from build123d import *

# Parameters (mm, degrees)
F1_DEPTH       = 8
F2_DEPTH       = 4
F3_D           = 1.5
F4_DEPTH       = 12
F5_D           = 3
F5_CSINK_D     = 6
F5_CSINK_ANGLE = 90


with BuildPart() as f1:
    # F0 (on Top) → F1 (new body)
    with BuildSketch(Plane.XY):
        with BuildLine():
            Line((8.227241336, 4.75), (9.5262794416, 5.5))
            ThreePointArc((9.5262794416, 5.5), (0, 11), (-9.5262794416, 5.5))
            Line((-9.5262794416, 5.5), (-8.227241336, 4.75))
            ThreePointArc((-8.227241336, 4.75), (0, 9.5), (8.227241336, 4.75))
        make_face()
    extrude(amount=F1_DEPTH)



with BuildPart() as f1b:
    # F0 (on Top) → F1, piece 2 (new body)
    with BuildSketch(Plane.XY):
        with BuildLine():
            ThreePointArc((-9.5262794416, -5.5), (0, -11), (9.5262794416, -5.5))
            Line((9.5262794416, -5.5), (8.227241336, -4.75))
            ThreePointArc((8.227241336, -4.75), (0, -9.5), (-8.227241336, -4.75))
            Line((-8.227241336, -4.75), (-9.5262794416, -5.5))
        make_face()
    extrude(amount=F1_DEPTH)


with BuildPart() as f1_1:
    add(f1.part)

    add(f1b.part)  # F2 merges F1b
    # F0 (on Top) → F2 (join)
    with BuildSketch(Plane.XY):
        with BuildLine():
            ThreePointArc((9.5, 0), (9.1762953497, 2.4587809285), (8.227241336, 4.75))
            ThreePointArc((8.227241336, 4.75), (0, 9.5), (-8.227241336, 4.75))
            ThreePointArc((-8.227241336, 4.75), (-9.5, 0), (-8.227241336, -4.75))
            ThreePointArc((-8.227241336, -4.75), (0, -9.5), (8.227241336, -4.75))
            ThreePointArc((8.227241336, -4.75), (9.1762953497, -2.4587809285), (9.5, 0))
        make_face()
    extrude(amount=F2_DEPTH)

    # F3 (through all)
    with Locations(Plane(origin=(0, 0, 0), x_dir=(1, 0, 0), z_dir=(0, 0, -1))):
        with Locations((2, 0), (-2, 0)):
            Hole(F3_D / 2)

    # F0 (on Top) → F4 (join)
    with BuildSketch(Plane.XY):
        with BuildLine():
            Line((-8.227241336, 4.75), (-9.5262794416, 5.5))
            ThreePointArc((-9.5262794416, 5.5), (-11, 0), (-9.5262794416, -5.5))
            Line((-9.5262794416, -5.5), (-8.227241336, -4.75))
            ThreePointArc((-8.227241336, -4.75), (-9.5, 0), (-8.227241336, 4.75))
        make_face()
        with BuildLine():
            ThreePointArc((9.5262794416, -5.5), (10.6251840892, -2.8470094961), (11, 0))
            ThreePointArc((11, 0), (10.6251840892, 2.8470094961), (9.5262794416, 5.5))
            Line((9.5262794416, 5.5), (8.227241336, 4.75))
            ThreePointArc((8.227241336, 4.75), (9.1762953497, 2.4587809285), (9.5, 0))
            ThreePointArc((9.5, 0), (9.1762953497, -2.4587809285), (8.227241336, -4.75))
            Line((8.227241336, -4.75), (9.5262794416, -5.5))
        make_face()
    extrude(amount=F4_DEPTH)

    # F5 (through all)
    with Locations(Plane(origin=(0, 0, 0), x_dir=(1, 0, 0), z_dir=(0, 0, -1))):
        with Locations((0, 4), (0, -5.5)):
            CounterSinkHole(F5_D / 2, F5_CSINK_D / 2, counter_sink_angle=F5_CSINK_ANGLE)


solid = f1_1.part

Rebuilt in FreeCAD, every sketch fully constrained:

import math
import FreeCAD as App
import Part
import Sketcher
Q = App.Units.Quantity

doc = App.newDocument("Part")
body = doc.addObject("PartDesign::Body", "Body")

# Sketch on XY plane
sketch1 = doc.addObject("Sketcher::SketchObject", "Sketch")
body.addObject(sketch1)
sketch1.AttachmentSupport = (doc.XY_Plane, [""])
sketch1.MapMode = "FlatFace"
sketch1.addGeometry([
    Part.LineSegment(App.Vector(8.227241, 4.75, 0), App.Vector(9.526279, 5.5, 0)),
    Part.ArcOfCircle(Part.Circle(App.Vector(0, 0, 0), App.Vector(0, 0, 1), 11), math.radians(30), math.radians(150)),
    Part.LineSegment(App.Vector(-9.526279, 5.5, 0), App.Vector(-8.227241, 4.75, 0)),
    Part.ArcOfCircle(Part.Circle(App.Vector(0, 0, 0), App.Vector(0, 0, 1), 9.5), math.radians(30), math.radians(150)),
], False)
sketch1.addConstraint([
    Sketcher.Constraint("Coincident", 0, 2, 1, 1),
    Sketcher.Constraint("Coincident", 1, 2, 2, 1),
    Sketcher.Constraint("Coincident", 2, 2, 3, 2),
    Sketcher.Constraint("Coincident", 3, 1, 0, 1),
    Sketcher.Constraint("Coincident", 1, 3, -1, 1),
    Sketcher.Constraint("Coincident", 3, 3, -1, 1),
    Sketcher.Constraint("Horizontal", 0, 2, 1, 2),
    Sketcher.Constraint("Horizontal", 2, 2, 3, 1),
    Sketcher.Constraint("Radius", 1, 11.0),
    Sketcher.Constraint("Radius", 3, 9.5),
    Sketcher.Constraint("Angle", 0, Q("30 deg")),
    Sketcher.Constraint("DistanceY", -1, 1, 0, 2, 5.5),
])
pad1 = doc.addObject("PartDesign::Pad", "Pad")
body.addObject(pad1)
pad1.Profile = sketch1
pad1.Length = 8
body2 = doc.addObject("PartDesign::Body", "Body001")

# Sketch on XY plane
sketch2 = doc.addObject("Sketcher::SketchObject", "Sketch001")
body2.addObject(sketch2)
sketch2.AttachmentSupport = (doc.getObject("XY_Plane001"), [""])
sketch2.MapMode = "FlatFace"
sketch2.addGeometry([
    Part.ArcOfCircle(Part.Circle(App.Vector(0, 0, 0), App.Vector(0, 0, 1), 11), math.radians(-150), math.radians(-30)),
    Part.LineSegment(App.Vector(9.526279, -5.5, 0), App.Vector(8.227241, -4.75, 0)),
    Part.ArcOfCircle(Part.Circle(App.Vector(0, 0, 0), App.Vector(0, 0, 1), 9.5), math.radians(-150), math.radians(-30)),
    Part.LineSegment(App.Vector(-8.227241, -4.75, 0), App.Vector(-9.526279, -5.5, 0)),
], False)
sketch2.addConstraint([
    Sketcher.Constraint("Coincident", 0, 2, 1, 1),
    Sketcher.Constraint("Coincident", 1, 2, 2, 2),
    Sketcher.Constraint("Coincident", 2, 1, 3, 1),
    Sketcher.Constraint("Coincident", 3, 2, 0, 1),
    Sketcher.Constraint("Coincident", 0, 3, -1, 1),
    Sketcher.Constraint("Coincident", 2, 3, -1, 1),
    Sketcher.Constraint("Horizontal", 1, 2, 2, 1),
    Sketcher.Constraint("Horizontal", 0, 2, 3, 2),
    Sketcher.Constraint("Radius", 0, 11.0),
    Sketcher.Constraint("Radius", 2, 9.5),
    Sketcher.Constraint("Angle", 1, Q("150 deg")),
    Sketcher.Constraint("DistanceY", 0, 2, -1, 1, 5.5),
])
pad2 = doc.addObject("PartDesign::Pad", "Pad001")
body2.addObject(pad2)
pad2.Profile = sketch2
pad2.Length = 8
body.AllowCompound = True
doc.recompute()

boolean = doc.addObject("PartDesign::Boolean", "Boolean")
body.addObject(boolean)
boolean.Type = "Fuse"
boolean.addObjects([body2])

# Sketch on XY plane
sketch3 = doc.addObject("Sketcher::SketchObject", "Sketch002")
body.addObject(sketch3)
sketch3.AttachmentSupport = (doc.XY_Plane, [""])
sketch3.MapMode = "FlatFace"
sketch3.addGeometry([
    Part.ArcOfCircle(Part.Circle(App.Vector(0, 0, 0), App.Vector(0, 0, 1), 9.5), math.radians(0), math.radians(30)),  # 0
    Part.ArcOfCircle(Part.Circle(App.Vector(0, 0, 0), App.Vector(0, 0, 1), 9.5), math.radians(30), math.radians(150)),  # 1
    Part.ArcOfCircle(Part.Circle(App.Vector(0, 0, 0), App.Vector(0, 0, 1), 9.5), math.radians(150), math.radians(210)),  # 2
    Part.ArcOfCircle(Part.Circle(App.Vector(0, 0, 0), App.Vector(0, 0, 1), 9.5), math.radians(-150), math.radians(-30)),  # 3
    Part.ArcOfCircle(Part.Circle(App.Vector(0, 0, 0), App.Vector(0, 0, 1), 9.5), math.radians(-30), math.radians(0)),  # 4
], False)
sketch3.addConstraint([
    Sketcher.Constraint("Tangent", 0, 2, 1, 1),
    Sketcher.Constraint("Tangent", 1, 2, 2, 1),
    Sketcher.Constraint("Tangent", 2, 2, 3, 1),
    Sketcher.Constraint("Tangent", 3, 2, 4, 1),
    Sketcher.Constraint("Tangent", 4, 2, 0, 1),
    Sketcher.Constraint("Coincident", 0, 3, -1, 1),
    Sketcher.Constraint("Coincident", 2, 3, -1, 1),
    Sketcher.Constraint("PointOnObject", 4, 2, -1),
    Sketcher.Constraint("Horizontal", 0, 2, 1, 2),
    Sketcher.Constraint("Horizontal", 2, 2, 3, 2),
    Sketcher.Constraint("Vertical", 1, 2, 2, 2),
    Sketcher.Constraint("Radius", 0, 9.5),
    Sketcher.Constraint("DistanceY", 2, 2, 1, 2, 9.5),
])
pad3 = doc.addObject("PartDesign::Pad", "Pad002")
body.addObject(pad3)
pad3.Profile = sketch3
pad3.Length = 4

# Sketch on XY plane
sketch4 = doc.addObject("Sketcher::SketchObject", "Sketch003")
body.addObject(sketch4)
sketch4.AttachmentSupport = (doc.XY_Plane, [""])
sketch4.MapMode = "FlatFace"
sketch4.addGeometry([
    Part.Circle(App.Vector(2, 0, 0), App.Vector(0, 0, 1), 0.75),
    Part.Circle(App.Vector(-2, 0, 0), App.Vector(0, 0, 1), 0.75),
], False)
sketch4.addConstraint([
    Sketcher.Constraint("Equal", 0, 1),
    Sketcher.Constraint("Symmetric", 0, 3, 1, 3, -1, 1),
    Sketcher.Constraint("PointOnObject", 0, 3, -1),
    Sketcher.Constraint("Diameter", 0, 1.5),
    Sketcher.Constraint("DistanceX", -1, 1, 0, 3, 2.0),
])
doc.recompute()
hole = doc.addObject("PartDesign::Hole", "Hole")
body.addObject(hole)
hole.Profile = sketch4
hole.ThreadType = "None"
hole.Diameter = 1.5
hole.DepthType = "ThroughAll"
hole.Reversed = True

# Sketch on XY plane
sketch5 = doc.addObject("Sketcher::SketchObject", "Sketch004")
body.addObject(sketch5)
sketch5.AttachmentSupport = (doc.XY_Plane, [""])
sketch5.MapMode = "FlatFace"
sketch5.addGeometry([
    Part.LineSegment(App.Vector(-8.227241, 4.75, 0), App.Vector(-9.526279, 5.5, 0)),  # 0
    Part.ArcOfCircle(Part.Circle(App.Vector(0, 0, 0), App.Vector(0, 0, 1), 11), math.radians(150), math.radians(210)),  # 1
    Part.LineSegment(App.Vector(-9.526279, -5.5, 0), App.Vector(-8.227241, -4.75, 0)),  # 2
    Part.ArcOfCircle(Part.Circle(App.Vector(0, 0, 0), App.Vector(0, 0, 1), 9.5), math.radians(150), math.radians(210)),  # 3
    Part.ArcOfCircle(Part.Circle(App.Vector(0, 0, 0), App.Vector(0, 0, 1), 11), math.radians(-30), math.radians(0)),  # 4
    Part.ArcOfCircle(Part.Circle(App.Vector(0, 0, 0), App.Vector(0, 0, 1), 11), math.radians(0), math.radians(30)),  # 5
    Part.LineSegment(App.Vector(9.526279, 5.5, 0), App.Vector(8.227241, 4.75, 0)),  # 6
    Part.ArcOfCircle(Part.Circle(App.Vector(0, 0, 0), App.Vector(0, 0, 1), 9.5), math.radians(0), math.radians(30)),  # 7
    Part.ArcOfCircle(Part.Circle(App.Vector(0, 0, 0), App.Vector(0, 0, 1), 9.5), math.radians(-30), math.radians(0)),  # 8
    Part.LineSegment(App.Vector(8.227241, -4.75, 0), App.Vector(9.526279, -5.5, 0)),  # 9
], False)
sketch5.addConstraint([
    Sketcher.Constraint("Coincident", 0, 2, 1, 1),
    Sketcher.Constraint("Coincident", 1, 2, 2, 1),
    Sketcher.Constraint("Coincident", 2, 2, 3, 2),
    Sketcher.Constraint("Coincident", 3, 1, 0, 1),
    Sketcher.Constraint("Tangent", 4, 2, 5, 1),
    Sketcher.Constraint("Coincident", 5, 2, 6, 1),
    Sketcher.Constraint("Coincident", 6, 2, 7, 2),
    Sketcher.Constraint("Tangent", 7, 1, 8, 2),
    Sketcher.Constraint("Coincident", 8, 1, 9, 1),
    Sketcher.Constraint("Coincident", 9, 2, 4, 1),
    Sketcher.Constraint("Coincident", 1, 3, -1, 1),
    Sketcher.Constraint("Coincident", 3, 3, -1, 1),
    Sketcher.Constraint("Coincident", 4, 3, -1, 1),
    Sketcher.Constraint("Coincident", 7, 3, -1, 1),
    Sketcher.Constraint("Equal", 1, 4),
    Sketcher.Constraint("Equal", 4, 5),
    Sketcher.Constraint("Equal", 3, 7),
    Sketcher.Constraint("Equal", 7, 8),
    Sketcher.Constraint("PointOnObject", 4, 2, -1),
    Sketcher.Constraint("PointOnObject", 7, 1, -1),
    Sketcher.Constraint("Parallel", 2, 6),
    Sketcher.Constraint("Parallel", 0, 9),
    Sketcher.Constraint("Horizontal", 0, 2, 5, 2),
    Sketcher.Constraint("Horizontal", 3, 1, 6, 2),
    Sketcher.Constraint("Horizontal", 2, 2, 8, 1),
    Sketcher.Constraint("Vertical", 0, 2, 1, 2),
    Sketcher.Constraint("Radius", 1, 11.0),
    Sketcher.Constraint("Radius", 3, 9.5),
    Sketcher.Constraint("Angle", 0, Q("150 deg")),
    Sketcher.Constraint("DistanceY", 1, 2, 0, 2, 11.0),
])
pad4 = doc.addObject("PartDesign::Pad", "Pad003")
body.addObject(pad4)
pad4.Profile = sketch5
pad4.Length = 12

# Sketch on XY plane
sketch6 = doc.addObject("Sketcher::SketchObject", "Sketch005")
body.addObject(sketch6)
sketch6.AttachmentSupport = (doc.XY_Plane, [""])
sketch6.MapMode = "FlatFace"
sketch6.addGeometry([
    Part.Circle(App.Vector(0, -4, 0), App.Vector(0, 0, 1), 1.5),
    Part.Circle(App.Vector(0, 5.5, 0), App.Vector(0, 0, 1), 1.5),
], False)
sketch6.addConstraint([
    Sketcher.Constraint("Equal", 0, 1),
    Sketcher.Constraint("PointOnObject", 0, 3, -2),
    Sketcher.Constraint("PointOnObject", 1, 3, -2),
    Sketcher.Constraint("Diameter", 0, 3.0),
    Sketcher.Constraint("DistanceY", 0, 3, -1, 1, 4.0),
    Sketcher.Constraint("DistanceY", -1, 1, 1, 3, 5.5),
])
doc.recompute()
hole2 = doc.addObject("PartDesign::Hole", "Hole001")
body.addObject(hole2)
hole2.Profile = sketch6
hole2.ThreadType = "None"
hole2.Diameter = 3
hole2.DepthType = "ThroughAll"
hole2.HoleCutType = "Countersink"
hole2.HoleCutDiameter = 6
hole2.HoleCutCountersinkAngle = 90
hole2.Reversed = True

doc.recompute()
